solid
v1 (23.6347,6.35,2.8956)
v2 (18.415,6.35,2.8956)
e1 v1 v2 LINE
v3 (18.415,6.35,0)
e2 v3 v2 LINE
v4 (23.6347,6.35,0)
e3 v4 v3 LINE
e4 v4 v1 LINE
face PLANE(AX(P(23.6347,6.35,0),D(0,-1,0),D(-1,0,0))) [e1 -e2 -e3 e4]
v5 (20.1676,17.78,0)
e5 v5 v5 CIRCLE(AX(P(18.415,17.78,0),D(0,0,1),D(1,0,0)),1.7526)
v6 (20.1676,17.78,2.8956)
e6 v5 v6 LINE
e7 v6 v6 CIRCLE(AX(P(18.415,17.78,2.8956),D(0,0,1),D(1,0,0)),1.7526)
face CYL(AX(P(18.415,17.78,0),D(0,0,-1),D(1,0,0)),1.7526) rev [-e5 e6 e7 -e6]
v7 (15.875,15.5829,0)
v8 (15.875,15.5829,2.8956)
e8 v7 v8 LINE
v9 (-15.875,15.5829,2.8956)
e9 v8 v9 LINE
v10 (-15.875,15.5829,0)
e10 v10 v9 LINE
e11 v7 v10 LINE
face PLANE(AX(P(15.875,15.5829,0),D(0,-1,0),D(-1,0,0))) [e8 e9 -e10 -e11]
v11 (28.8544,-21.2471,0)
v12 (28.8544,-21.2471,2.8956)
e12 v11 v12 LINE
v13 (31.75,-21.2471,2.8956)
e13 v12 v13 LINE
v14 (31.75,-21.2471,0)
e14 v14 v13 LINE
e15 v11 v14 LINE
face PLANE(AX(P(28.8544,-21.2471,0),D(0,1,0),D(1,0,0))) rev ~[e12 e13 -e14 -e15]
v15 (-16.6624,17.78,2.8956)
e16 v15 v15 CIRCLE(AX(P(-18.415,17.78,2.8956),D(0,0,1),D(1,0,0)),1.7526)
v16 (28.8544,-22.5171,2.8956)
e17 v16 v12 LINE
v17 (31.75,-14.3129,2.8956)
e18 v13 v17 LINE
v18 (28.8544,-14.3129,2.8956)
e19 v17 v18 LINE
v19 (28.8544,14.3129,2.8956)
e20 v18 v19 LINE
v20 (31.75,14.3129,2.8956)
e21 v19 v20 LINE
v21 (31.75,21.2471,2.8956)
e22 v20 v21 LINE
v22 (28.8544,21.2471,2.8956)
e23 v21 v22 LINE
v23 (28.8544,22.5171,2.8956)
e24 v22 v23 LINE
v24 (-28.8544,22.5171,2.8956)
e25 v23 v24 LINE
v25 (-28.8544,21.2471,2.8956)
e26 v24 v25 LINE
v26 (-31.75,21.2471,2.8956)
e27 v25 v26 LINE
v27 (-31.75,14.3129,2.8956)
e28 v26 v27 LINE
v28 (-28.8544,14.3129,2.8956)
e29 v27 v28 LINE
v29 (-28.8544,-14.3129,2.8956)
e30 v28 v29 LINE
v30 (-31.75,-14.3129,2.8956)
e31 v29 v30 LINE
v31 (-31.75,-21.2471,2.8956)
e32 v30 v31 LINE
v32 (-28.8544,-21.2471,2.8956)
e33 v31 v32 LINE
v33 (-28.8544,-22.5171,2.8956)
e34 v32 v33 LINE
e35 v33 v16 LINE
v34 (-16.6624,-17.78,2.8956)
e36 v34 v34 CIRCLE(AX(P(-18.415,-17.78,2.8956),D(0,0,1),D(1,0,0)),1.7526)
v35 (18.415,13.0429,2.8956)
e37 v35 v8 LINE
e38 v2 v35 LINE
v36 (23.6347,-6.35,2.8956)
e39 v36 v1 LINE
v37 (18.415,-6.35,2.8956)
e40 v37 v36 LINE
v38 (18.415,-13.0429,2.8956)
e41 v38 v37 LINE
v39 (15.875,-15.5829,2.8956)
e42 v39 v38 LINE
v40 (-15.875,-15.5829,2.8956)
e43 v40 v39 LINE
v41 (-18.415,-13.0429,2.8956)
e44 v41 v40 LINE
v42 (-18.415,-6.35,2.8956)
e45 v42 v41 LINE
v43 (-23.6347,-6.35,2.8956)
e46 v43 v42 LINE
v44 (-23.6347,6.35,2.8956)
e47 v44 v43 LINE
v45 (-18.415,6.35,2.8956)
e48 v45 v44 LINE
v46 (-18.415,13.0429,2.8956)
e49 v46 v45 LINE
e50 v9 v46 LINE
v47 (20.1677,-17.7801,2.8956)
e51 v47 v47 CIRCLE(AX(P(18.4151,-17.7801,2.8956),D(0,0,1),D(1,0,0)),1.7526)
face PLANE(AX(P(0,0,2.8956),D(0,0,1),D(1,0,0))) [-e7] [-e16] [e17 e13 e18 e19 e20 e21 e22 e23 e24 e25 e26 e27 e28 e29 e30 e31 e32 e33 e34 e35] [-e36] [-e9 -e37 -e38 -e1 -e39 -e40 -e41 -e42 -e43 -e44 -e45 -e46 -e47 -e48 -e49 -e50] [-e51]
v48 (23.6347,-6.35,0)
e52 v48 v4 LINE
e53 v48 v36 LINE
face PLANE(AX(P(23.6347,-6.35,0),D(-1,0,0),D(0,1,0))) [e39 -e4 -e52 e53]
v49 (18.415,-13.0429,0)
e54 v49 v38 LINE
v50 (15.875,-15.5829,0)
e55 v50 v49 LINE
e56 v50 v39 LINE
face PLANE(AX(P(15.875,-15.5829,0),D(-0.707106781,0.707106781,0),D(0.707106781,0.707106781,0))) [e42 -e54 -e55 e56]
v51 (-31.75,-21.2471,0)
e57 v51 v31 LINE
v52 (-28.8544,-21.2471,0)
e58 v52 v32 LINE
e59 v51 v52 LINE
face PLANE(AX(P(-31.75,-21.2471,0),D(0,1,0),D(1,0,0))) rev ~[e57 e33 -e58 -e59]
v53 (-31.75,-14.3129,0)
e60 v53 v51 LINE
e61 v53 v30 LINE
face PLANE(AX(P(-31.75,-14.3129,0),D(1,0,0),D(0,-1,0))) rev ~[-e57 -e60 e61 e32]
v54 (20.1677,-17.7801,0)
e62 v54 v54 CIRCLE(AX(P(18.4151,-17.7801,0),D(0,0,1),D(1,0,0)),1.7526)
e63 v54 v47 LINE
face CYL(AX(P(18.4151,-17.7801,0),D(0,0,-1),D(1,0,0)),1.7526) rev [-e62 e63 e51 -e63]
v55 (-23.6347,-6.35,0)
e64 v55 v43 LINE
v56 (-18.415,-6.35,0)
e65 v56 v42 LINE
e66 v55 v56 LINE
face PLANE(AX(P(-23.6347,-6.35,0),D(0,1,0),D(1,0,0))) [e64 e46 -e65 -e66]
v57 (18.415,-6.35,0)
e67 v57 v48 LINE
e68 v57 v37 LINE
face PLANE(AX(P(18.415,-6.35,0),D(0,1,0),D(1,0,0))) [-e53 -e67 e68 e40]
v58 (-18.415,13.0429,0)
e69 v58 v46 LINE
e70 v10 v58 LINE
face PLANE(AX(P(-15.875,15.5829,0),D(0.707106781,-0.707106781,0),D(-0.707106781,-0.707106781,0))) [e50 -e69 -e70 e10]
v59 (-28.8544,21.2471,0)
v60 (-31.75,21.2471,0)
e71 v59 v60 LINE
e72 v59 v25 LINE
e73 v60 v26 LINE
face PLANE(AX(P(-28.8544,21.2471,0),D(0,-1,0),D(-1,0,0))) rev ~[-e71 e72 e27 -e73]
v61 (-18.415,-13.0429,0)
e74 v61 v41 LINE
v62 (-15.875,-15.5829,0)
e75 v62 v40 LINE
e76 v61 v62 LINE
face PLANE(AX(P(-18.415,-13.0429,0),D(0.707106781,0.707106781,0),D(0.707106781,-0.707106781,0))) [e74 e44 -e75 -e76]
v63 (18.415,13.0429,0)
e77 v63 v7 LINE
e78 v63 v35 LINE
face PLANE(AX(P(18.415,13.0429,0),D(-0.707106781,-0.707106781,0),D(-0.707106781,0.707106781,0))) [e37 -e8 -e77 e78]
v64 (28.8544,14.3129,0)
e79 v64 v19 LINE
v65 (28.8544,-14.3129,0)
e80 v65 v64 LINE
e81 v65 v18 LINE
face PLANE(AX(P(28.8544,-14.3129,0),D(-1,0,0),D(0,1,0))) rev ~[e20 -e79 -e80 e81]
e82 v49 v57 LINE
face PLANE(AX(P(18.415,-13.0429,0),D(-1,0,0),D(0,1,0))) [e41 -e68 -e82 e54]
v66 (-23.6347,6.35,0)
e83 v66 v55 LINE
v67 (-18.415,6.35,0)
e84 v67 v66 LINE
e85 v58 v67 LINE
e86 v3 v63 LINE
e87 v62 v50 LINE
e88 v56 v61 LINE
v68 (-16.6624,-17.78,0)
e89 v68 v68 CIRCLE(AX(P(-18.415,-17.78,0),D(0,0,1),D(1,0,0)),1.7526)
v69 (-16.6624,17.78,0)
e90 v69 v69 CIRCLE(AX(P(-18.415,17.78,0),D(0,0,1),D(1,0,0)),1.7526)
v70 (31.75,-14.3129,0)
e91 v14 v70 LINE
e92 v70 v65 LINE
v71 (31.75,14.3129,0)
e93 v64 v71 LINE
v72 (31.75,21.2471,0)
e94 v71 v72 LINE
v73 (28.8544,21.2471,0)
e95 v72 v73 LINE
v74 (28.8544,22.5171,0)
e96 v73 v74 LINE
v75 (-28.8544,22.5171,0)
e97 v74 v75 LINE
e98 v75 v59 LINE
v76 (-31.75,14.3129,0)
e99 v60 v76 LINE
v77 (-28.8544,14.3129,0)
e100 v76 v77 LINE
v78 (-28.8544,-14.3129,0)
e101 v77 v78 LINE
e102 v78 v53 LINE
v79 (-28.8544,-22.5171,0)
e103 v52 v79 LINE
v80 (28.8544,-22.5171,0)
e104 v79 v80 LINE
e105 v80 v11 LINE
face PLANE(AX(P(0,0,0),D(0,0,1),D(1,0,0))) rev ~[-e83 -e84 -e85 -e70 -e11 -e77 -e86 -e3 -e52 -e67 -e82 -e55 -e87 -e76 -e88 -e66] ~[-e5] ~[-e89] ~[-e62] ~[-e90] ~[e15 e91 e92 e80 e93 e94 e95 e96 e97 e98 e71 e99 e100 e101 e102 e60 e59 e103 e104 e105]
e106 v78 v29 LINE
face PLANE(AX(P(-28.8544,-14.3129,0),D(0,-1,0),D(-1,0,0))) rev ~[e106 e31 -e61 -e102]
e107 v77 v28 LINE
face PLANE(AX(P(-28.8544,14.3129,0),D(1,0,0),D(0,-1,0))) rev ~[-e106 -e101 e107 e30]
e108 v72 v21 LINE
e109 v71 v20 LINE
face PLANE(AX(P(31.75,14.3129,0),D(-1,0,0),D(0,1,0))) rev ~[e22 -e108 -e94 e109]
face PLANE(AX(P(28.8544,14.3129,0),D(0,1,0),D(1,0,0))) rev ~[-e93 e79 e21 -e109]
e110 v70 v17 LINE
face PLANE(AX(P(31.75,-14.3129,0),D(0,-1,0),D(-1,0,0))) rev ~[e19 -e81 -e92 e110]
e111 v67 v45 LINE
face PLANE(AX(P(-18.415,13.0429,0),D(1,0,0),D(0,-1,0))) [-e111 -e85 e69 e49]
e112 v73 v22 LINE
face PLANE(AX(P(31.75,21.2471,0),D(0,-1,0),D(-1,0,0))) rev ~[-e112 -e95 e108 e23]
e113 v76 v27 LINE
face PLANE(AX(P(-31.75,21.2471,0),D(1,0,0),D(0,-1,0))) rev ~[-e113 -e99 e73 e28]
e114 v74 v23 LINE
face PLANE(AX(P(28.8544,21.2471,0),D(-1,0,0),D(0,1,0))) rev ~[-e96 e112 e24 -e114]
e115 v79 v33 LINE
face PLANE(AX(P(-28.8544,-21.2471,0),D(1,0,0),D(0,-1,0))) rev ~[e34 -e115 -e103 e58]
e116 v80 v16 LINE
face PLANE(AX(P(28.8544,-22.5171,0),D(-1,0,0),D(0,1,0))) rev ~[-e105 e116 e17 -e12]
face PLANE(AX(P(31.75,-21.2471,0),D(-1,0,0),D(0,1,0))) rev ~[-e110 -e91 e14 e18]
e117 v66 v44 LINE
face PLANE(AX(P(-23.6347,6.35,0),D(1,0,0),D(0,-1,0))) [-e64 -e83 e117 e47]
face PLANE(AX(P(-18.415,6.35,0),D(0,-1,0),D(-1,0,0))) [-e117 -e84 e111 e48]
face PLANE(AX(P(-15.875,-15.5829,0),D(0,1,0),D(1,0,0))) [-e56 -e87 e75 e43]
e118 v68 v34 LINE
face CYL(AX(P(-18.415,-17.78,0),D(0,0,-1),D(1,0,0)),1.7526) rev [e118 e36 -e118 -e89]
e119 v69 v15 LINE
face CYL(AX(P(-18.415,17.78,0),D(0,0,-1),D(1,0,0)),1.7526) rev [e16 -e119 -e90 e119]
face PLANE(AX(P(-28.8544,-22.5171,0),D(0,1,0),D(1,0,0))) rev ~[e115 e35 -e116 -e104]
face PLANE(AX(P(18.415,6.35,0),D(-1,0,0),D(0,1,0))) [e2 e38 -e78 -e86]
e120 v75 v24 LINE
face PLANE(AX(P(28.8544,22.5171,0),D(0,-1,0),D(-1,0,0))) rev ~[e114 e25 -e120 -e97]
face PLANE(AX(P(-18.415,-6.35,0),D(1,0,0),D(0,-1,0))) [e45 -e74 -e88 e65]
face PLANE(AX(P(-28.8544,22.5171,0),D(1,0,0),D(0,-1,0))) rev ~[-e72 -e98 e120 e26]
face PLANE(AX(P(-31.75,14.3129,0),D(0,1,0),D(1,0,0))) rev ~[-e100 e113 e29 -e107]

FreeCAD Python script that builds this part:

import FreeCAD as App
import Part
import Sketcher

V = App.Vector
Q = App.Units.Quantity

doc = App.newDocument("Part")
body = doc.addObject("PartDesign::Body", "Body")

# Sketch on XY plane
sketch1 = doc.addObject("Sketcher::SketchObject", "Sketch")
body.addObject(sketch1)
sketch1.AttachmentSupport = (doc.XY_Plane, [""])
sketch1.MapMode = "FlatFace"
sketch1.addGeometry(Part.LineSegment(V(-31.8, -14.3, 0), V(-31.8, -21.2, 0)), False)
sketch1.addGeometry(Part.LineSegment(V(-31.8, -21.2, 0), V(-28.9, -21.2, 0)), False)
sketch1.addGeometry(Part.LineSegment(V(-28.9, -21.2, 0), V(-28.9, -22.5, 0)), False)
sketch1.addGeometry(Part.LineSegment(V(-28.9, -22.5, 0), V(28.9, -22.5, 0)), False)
sketch1.addGeometry(Part.LineSegment(V(28.9, -22.5, 0), V(28.9, -21.2, 0)), False)
sketch1.addGeometry(Part.LineSegment(V(28.9, -21.2, 0), V(31.8, -21.2, 0)), False)
sketch1.addGeometry(Part.LineSegment(V(31.8, -21.2, 0), V(31.8, -14.3, 0)), False)
sketch1.addGeometry(Part.LineSegment(V(31.8, -14.3, 0), V(28.9, -14.3, 0)), False)
sketch1.addGeometry(Part.LineSegment(V(28.9, -14.3, 0), V(28.9, 14.3, 0)), False)
sketch1.addGeometry(Part.LineSegment(V(28.9, 14.3, 0), V(31.8, 14.3, 0)), False)
sketch1.addGeometry(Part.LineSegment(V(31.8, 14.3, 0), V(31.8, 21.2, 0)), False)
sketch1.addGeometry(Part.LineSegment(V(31.8, 21.2, 0), V(28.9, 21.2, 0)), False)
sketch1.addGeometry(Part.LineSegment(V(28.9, 21.2, 0), V(28.9, 22.5, 0)), False)
sketch1.addGeometry(Part.LineSegment(V(28.9, 22.5, 0), V(-28.9, 22.5, 0)), False)
sketch1.addGeometry(Part.LineSegment(V(-28.9, 22.5, 0), V(-28.9, 21.2, 0)), False)
sketch1.addGeometry(Part.LineSegment(V(-28.9, 21.2, 0), V(-31.8, 21.2, 0)), False)
sketch1.addGeometry(Part.LineSegment(V(-31.8, 21.2, 0), V(-31.8, 14.3, 0)), False)
sketch1.addGeometry(Part.LineSegment(V(-31.8, 14.3, 0), V(-28.9, 14.3, 0)), False)
sketch1.addGeometry(Part.LineSegment(V(-28.9, 14.3, 0), V(-28.9, -14.3, 0)), False)
sketch1.addGeometry(Part.LineSegment(V(-28.9, -14.3, 0), V(-31.8, -14.3, 0)), False)
sketch1.addGeometry(Part.Circle(V(-18.4, -17.8, 0), V(0, 0, 1), 1.8), False)
sketch1.addGeometry(Part.Circle(V(18.4, -17.8, 0), V(0, 0, 1), 1.8), False)
sketch1.addGeometry(Part.LineSegment(V(23.6, -6.3, 0), V(18.4, -6.3, 0)), False)
sketch1.addGeometry(Part.LineSegment(V(18.4, -6.3, 0), V(18.4, -13, 0)), False)
sketch1.addGeometry(Part.LineSegment(V(18.4, -13, 0), V(15.9, -15.6, 0)), False)
sketch1.addGeometry(Part.LineSegment(V(15.9, -15.6, 0), V(-15.9, -15.6, 0)), False)
sketch1.addGeometry(Part.LineSegment(V(-15.9, -15.6, 0), V(-18.4, -13, 0)), False)
sketch1.addGeometry(Part.LineSegment(V(-18.4, -13, 0), V(-18.4, -6.3, 0)), False)
sketch1.addGeometry(Part.LineSegment(V(-18.4, -6.3, 0), V(-23.6, -6.3, 0)), False)
sketch1.addGeometry(Part.LineSegment(V(-23.6, -6.3, 0), V(-23.6, 6.3, 0)), False)
sketch1.addGeometry(Part.LineSegment(V(-23.6, 6.3, 0), V(-18.4, 6.3, 0)), False)
sketch1.addGeometry(Part.LineSegment(V(-18.4, 6.3, 0), V(-18.4, 13, 0)), False)
sketch1.addGeometry(Part.LineSegment(V(-18.4, 13, 0), V(-15.9, 15.6, 0)), False)
sketch1.addGeometry(Part.LineSegment(V(-15.9, 15.6, 0), V(15.9, 15.6, 0)), False)
sketch1.addGeometry(Part.LineSegment(V(15.9, 15.6, 0), V(18.4, 13, 0)), False)
sketch1.addGeometry(Part.LineSegment(V(18.4, 13, 0), V(18.4, 6.3, 0)), False)
sketch1.addGeometry(Part.LineSegment(V(18.4, 6.3, 0), V(23.6, 6.3, 0)), False)
sketch1.addGeometry(Part.LineSegment(V(23.6, 6.3, 0), V(23.6, -6.3, 0)), False)
sketch1.addGeometry(Part.Circle(V(-18.4, 17.8, 0), V(0, 0, 1), 1.8), False)
sketch1.addGeometry(Part.Circle(V(18.4, 17.8, 0), V(0, 0, 1), 1.8), False)
sketch1.addConstraint(Sketcher.Constraint("Coincident", 0, 2, 1, 1))
sketch1.addConstraint(Sketcher.Constraint("Coincident", 1, 2, 2, 1))
sketch1.addConstraint(Sketcher.Constraint("Coincident", 2, 2, 3, 1))
sketch1.addConstraint(Sketcher.Constraint("Coincident", 3, 2, 4, 1))
sketch1.addConstraint(Sketcher.Constraint("Coincident", 4, 2, 5, 1))
sketch1.addConstraint(Sketcher.Constraint("Coincident", 5, 2, 6, 1))
sketch1.addConstraint(Sketcher.Constraint("Coincident", 6, 2, 7, 1))
sketch1.addConstraint(Sketcher.Constraint("Coincident", 7, 2, 8, 1))
sketch1.addConstraint(Sketcher.Constraint("Coincident", 8, 2, 9, 1))
sketch1.addConstraint(Sketcher.Constraint("Coincident", 9, 2, 10, 1))
sketch1.addConstraint(Sketcher.Constraint("Coincident", 10, 2, 11, 1))
sketch1.addConstraint(Sketcher.Constraint("Coincident", 11, 2, 12, 1))
sketch1.addConstraint(Sketcher.Constraint("Coincident", 12, 2, 13, 1))
sketch1.addConstraint(Sketcher.Constraint("Coincident", 13, 2, 14, 1))
sketch1.addConstraint(Sketcher.Constraint("Coincident", 14, 2, 15, 1))
sketch1.addConstraint(Sketcher.Constraint("Coincident", 15, 2, 16, 1))
sketch1.addConstraint(Sketcher.Constraint("Coincident", 16, 2, 17, 1))
sketch1.addConstraint(Sketcher.Constraint("Coincident", 17, 2, 18, 1))
sketch1.addConstraint(Sketcher.Constraint("Coincident", 18, 2, 19, 1))
sketch1.addConstraint(Sketcher.Constraint("Coincident", 19, 2, 0, 1))
sketch1.addConstraint(Sketcher.Constraint("Coincident", 22, 2, 23, 1))
sketch1.addConstraint(Sketcher.Constraint("Coincident", 23, 2, 24, 1))
sketch1.addConstraint(Sketcher.Constraint("Coincident", 24, 2, 25, 1))
sketch1.addConstraint(Sketcher.Constraint("Coincident", 25, 2, 26, 1))
sketch1.addConstraint(Sketcher.Constraint("Coincident", 26, 2, 27, 1))
sketch1.addConstraint(Sketcher.Constraint("Coincident", 27, 2, 28, 1))
sketch1.addConstraint(Sketcher.Constraint("Coincident", 28, 2, 29, 1))
sketch1.addConstraint(Sketcher.Constraint("Coincident", 29, 2, 30, 1))
sketch1.addConstraint(Sketcher.Constraint("Coincident", 30, 2, 31, 1))
sketch1.addConstraint(Sketcher.Constraint("Coincident", 31, 2, 32, 1))
sketch1.addConstraint(Sketcher.Constraint("Coincident", 32, 2, 33, 1))
sketch1.addConstraint(Sketcher.Constraint("Coincident", 33, 2, 34, 1))
sketch1.addConstraint(Sketcher.Constraint("Coincident", 34, 2, 35, 1))
sketch1.addConstraint(Sketcher.Constraint("Coincident", 35, 2, 36, 1))
sketch1.addConstraint(Sketcher.Constraint("Coincident", 36, 2, 37, 1))
sketch1.addConstraint(Sketcher.Constraint("Coincident", 37, 2, 22, 1))
sketch1.addConstraint(Sketcher.Constraint("Vertical", 0))
sketch1.addConstraint(Sketcher.Constraint("Horizontal", 1))
sketch1.addConstraint(Sketcher.Constraint("Vertical", 2))
sketch1.addConstraint(Sketcher.Constraint("Horizontal", 3))
sketch1.addConstraint(Sketcher.Constraint("Vertical", 4))
sketch1.addConstraint(Sketcher.Constraint("Horizontal", 5))
sketch1.addConstraint(Sketcher.Constraint("Vertical", 6))
sketch1.addConstraint(Sketcher.Constraint("Horizontal", 7))
sketch1.addConstraint(Sketcher.Constraint("Vertical", 8))
sketch1.addConstraint(Sketcher.Constraint("Horizontal", 9))
sketch1.addConstraint(Sketcher.Constraint("Vertical", 10))
sketch1.addConstraint(Sketcher.Constraint("Horizontal", 11))
sketch1.addConstraint(Sketcher.Constraint("Vertical", 12))
sketch1.addConstraint(Sketcher.Constraint("Horizontal", 13))
sketch1.addConstraint(Sketcher.Constraint("Vertical", 14))
sketch1.addConstraint(Sketcher.Constraint("Horizontal", 15))
sketch1.addConstraint(Sketcher.Constraint("Vertical", 16))
sketch1.addConstraint(Sketcher.Constraint("Horizontal", 17))
sketch1.addConstraint(Sketcher.Constraint("Vertical", 18))
sketch1.addConstraint(Sketcher.Constraint("Horizontal", 19))
sketch1.addConstraint(Sketcher.Constraint("Horizontal", 22))
sketch1.addConstraint(Sketcher.Constraint("Vertical", 23))
sketch1.addConstraint(Sketcher.Constraint("Horizontal", 25))
sketch1.addConstraint(Sketcher.Constraint("Vertical", 27))
sketch1.addConstraint(Sketcher.Constraint("Horizontal", 28))
sketch1.addConstraint(Sketcher.Constraint("Vertical", 29))
sketch1.addConstraint(Sketcher.Constraint("Horizontal", 30))
sketch1.addConstraint(Sketcher.Constraint("Vertical", 31))
sketch1.addConstraint(Sketcher.Constraint("Horizontal", 33))
sketch1.addConstraint(Sketcher.Constraint("Vertical", 35))
sketch1.addConstraint(Sketcher.Constraint("Horizontal", 36))
sketch1.addConstraint(Sketcher.Constraint("Vertical", 37))
sketch1.addConstraint(Sketcher.Constraint("Equal", 20, 21))
sketch1.addConstraint(Sketcher.Constraint("Equal", 21, 38))
sketch1.addConstraint(Sketcher.Constraint("Equal", 38, 39))
sketch1.addConstraint(Sketcher.Constraint("Symmetric", 21, 3, 38, 3, -1, 1))
sketch1.addConstraint(Sketcher.Constraint("Symmetric", 20, 3, 39, 3, -1, 1))
sketch1.addConstraint(Sketcher.Constraint("Symmetric", 0, 2, 10, 2, -1, 1))
sketch1.addConstraint(Sketcher.Constraint("Symmetric", 2, 2, 12, 2, -1, 1))
sketch1.addConstraint(Sketcher.Constraint("Symmetric", 4, 2, 14, 2, -1, 1))
sketch1.addConstraint(Sketcher.Constraint("Symmetric", 6, 2, 16, 2, -1, 1))
sketch1.addConstraint(Sketcher.Constraint("Symmetric", 8, 2, 18, 2, -1, 1))
sketch1.addConstraint(Sketcher.Constraint("Symmetric", 22, 2, 30, 2, -1, 1))
sketch1.addConstraint(Sketcher.Constraint("Symmetric", 24, 2, 32, 2, -1, 1))
sketch1.addConstraint(Sketcher.Constraint("Symmetric", 26, 2, 34, 2, -1, 1))
sketch1.addConstraint(Sketcher.Constraint("Symmetric", 28, 2, 36, 2, -1, 1))
sketch1.addConstraint(Sketcher.Constraint("Symmetric", 20, 3, 21, 3, -2))
sketch1.addConstraint(Sketcher.Constraint("Symmetric", 1, 2, 4, 2, -2))
sketch1.addConstraint(Sketcher.Constraint("Symmetric", 9, 2, 16, 2, -2))
sketch1.addConstraint(Sketcher.Constraint("Symmetric", 23, 2, 26, 2, -2))
sketch1.addConstraint(Sketcher.Constraint("Perpendicular", 24, 26))
sketch1.addConstraint(Sketcher.Constraint("Perpendicular", 26, 32))
sketch1.addConstraint(Sketcher.Constraint("Perpendicular", 32, 34))
sketch1.addConstraint(Sketcher.Constraint("Horizontal", 22, 2, 27, 2))
sketch1.addConstraint(Sketcher.Constraint("Vertical", 4, 2, 7, 2))
sketch1.addConstraint(Sketcher.Constraint("Vertical", 39, 3, 22, 2))
sketch1.addConstraint(Sketcher.Constraint("Vertical", 25, 2, 32, 2))
sketch1.addConstraint(Sketcher.Constraint("Diameter", 20, Q("0.138 in")))
sketch1.addConstraint(Sketcher.Constraint("DistanceY", 29, 1, 29, 2, Q("0.5 in")))
sketch1.addConstraint(Sketcher.Constraint("DistanceX", 25, 2, 25, 1, Q("1.25 in")))
sketch1.addConstraint(Sketcher.Constraint("DistanceY", 2, 2, 2, 1, Q("0.05 in")))
sketch1.addConstraint(Sketcher.Constraint("DistanceY", 20, 3, -1, 1, Q("0.7 in")))
sketch1.addConstraint(Sketcher.Constraint("DistanceY", 4, 2, 8, 2, Q("1.4 in")))
sketch1.addConstraint(Sketcher.Constraint("DistanceX", 24, 2, 21, 3, Q("0.1 in")))
sketch1.addConstraint(Sketcher.Constraint("DistanceX", 1, 1, 1, 2, Q("0.114 in")))
sketch1.addConstraint(Sketcher.Constraint("DistanceX", 3, 1, 3, 2, Q("2.272 in")))
sketch1.addConstraint(Sketcher.Constraint("DistanceY", 0, 2, 0, 1, Q("0.273 in")))
sketch1.addConstraint(Sketcher.Constraint("DistanceY", 7, 2, 23, 2, Q("0.05 in")))
sketch1.addConstraint(Sketcher.Constraint("DistanceX", 22, 2, 22, 1, Q("0.2055 in")))
pad1 = doc.addObject("PartDesign::Pad", "Pad")
body.addObject(pad1)
pad1.Profile = sketch1
pad1.Length = Q("0.114 in")

doc.recompute()
